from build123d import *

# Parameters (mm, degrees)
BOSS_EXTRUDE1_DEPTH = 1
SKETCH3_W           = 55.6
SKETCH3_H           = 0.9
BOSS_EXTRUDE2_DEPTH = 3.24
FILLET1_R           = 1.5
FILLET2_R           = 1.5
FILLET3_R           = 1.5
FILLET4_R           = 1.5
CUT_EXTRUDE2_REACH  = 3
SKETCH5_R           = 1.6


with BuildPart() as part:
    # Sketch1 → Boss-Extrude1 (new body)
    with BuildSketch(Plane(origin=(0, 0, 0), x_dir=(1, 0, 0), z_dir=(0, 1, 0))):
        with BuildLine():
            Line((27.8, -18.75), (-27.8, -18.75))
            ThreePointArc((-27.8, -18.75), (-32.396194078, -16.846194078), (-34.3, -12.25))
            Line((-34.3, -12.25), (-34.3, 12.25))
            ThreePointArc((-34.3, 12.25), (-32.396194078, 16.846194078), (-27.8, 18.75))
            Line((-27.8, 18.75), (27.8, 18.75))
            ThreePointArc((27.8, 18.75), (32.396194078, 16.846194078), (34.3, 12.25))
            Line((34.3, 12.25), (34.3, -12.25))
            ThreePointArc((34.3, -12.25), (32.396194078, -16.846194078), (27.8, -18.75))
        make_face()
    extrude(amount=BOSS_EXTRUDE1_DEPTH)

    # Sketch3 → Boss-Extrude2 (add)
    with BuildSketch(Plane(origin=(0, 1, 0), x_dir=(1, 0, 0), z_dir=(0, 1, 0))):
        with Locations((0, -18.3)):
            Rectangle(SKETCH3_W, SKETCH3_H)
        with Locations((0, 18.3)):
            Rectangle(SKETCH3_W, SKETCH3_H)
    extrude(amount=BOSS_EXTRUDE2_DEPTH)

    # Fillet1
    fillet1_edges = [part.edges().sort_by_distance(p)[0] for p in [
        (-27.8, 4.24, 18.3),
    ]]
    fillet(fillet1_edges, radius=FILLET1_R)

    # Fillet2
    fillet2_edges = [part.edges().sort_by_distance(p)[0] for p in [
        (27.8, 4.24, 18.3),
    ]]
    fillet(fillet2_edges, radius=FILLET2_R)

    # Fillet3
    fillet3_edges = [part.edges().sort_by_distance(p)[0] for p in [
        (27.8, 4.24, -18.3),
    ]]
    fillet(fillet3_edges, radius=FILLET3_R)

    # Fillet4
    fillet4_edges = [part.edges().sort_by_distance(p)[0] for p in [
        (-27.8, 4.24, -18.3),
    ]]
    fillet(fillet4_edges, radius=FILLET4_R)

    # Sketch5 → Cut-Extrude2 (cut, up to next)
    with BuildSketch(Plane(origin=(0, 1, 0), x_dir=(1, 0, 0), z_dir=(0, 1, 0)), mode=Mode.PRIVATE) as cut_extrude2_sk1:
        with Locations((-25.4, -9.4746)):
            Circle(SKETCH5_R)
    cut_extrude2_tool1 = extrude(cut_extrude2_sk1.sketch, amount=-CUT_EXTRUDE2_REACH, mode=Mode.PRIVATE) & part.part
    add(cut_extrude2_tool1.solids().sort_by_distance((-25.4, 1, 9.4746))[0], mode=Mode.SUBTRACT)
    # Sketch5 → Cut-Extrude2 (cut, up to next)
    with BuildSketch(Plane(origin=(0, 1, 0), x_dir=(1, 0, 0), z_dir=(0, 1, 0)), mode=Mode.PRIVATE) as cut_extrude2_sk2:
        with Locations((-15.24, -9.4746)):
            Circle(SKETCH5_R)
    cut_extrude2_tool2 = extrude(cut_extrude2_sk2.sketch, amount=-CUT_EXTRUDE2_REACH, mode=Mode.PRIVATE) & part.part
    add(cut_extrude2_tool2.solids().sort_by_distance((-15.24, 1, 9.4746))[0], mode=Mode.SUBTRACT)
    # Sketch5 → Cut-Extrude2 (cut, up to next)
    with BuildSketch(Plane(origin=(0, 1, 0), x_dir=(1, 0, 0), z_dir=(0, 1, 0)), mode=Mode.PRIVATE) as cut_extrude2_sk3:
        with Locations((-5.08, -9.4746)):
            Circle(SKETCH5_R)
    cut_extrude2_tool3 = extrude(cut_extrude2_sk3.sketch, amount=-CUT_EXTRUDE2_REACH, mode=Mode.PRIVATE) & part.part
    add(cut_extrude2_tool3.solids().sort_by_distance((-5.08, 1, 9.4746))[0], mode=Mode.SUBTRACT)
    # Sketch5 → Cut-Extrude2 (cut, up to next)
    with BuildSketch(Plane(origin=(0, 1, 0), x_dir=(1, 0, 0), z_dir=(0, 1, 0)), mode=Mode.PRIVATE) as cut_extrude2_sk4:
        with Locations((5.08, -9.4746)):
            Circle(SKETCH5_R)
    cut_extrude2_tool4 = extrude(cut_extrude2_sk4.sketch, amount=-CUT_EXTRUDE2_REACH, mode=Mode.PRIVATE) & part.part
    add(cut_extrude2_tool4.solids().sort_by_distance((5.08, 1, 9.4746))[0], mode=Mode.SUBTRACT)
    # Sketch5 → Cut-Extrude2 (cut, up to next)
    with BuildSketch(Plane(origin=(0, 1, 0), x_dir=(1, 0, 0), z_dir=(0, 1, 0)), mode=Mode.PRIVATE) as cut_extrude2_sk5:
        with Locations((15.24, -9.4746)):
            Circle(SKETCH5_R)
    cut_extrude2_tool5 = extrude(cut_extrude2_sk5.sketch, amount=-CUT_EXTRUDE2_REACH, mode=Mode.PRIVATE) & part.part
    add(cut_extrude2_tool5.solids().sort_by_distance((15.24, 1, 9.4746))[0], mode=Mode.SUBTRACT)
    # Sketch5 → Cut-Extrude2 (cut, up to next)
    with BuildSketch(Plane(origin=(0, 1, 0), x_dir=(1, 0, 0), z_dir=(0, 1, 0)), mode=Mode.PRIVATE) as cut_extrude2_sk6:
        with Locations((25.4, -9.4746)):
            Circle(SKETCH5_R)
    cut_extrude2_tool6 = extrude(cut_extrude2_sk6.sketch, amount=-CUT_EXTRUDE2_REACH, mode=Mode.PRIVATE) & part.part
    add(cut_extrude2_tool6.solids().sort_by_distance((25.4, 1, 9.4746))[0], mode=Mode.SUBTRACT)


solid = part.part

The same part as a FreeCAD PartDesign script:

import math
import FreeCAD as App
import Part
import Sketcher
Q = App.Units.Quantity


def edges_at(feature, points):
    """Names of the edges that pass closest to the given points."""
    edges = feature.Shape.Edges
    near = lambda p: min(range(len(edges)), key=lambda i: edges[i].distToShape(Part.Vertex(*p))[0])
    return sorted({f"Edge{near(p) + 1}" for p in points})

doc = App.newDocument("Part")
body = doc.addObject("PartDesign::Body", "Body")

# Sketch on XZ plane
sketch1 = body.newObject("Sketcher::SketchObject", "Sketch")
sketch1.AttachmentSupport = (doc.getObject("XZ_Plane"), [""])
sketch1.MapMode = "FlatFace"
sketch1.addGeometry([
    Part.LineSegment(App.Vector(-28, 19, 0), App.Vector(28, 19, 0)),  # 0
    Part.ArcOfCircle(Part.Circle(App.Vector(28, 12, 0), App.Vector(0, 0, 1), 6), math.radians(0), math.radians(90)),  # 1
    Part.LineSegment(App.Vector(34, 12, 0), App.Vector(34, -12, 0)),  # 2
    Part.ArcOfCircle(Part.Circle(App.Vector(28, -12, 0), App.Vector(0, 0, 1), 6), math.radians(-90), math.radians(0)),  # 3
    Part.LineSegment(App.Vector(28, -19, 0), App.Vector(-28, -19, 0)),  # 4
    Part.ArcOfCircle(Part.Circle(App.Vector(-28, -12, 0), App.Vector(0, 0, 1), 6), math.radians(180), math.radians(270)),  # 5
    Part.LineSegment(App.Vector(-34, -12, 0), App.Vector(-34, 12, 0)),  # 6
    Part.ArcOfCircle(Part.Circle(App.Vector(-28, 12, 0), App.Vector(0, 0, 1), 6), math.radians(90), math.radians(180)),  # 7
], False)
sketch1.addConstraint([
    Sketcher.Constraint("Tangent", 0, 2, 1, 2),
    Sketcher.Constraint("Tangent", 1, 1, 2, 1),
    Sketcher.Constraint("Tangent", 2, 2, 3, 2),
    Sketcher.Constraint("Tangent", 3, 1, 4, 1),
    Sketcher.Constraint("Tangent", 4, 2, 5, 2),
    Sketcher.Constraint("Tangent", 5, 1, 6, 1),
    Sketcher.Constraint("Tangent", 6, 2, 7, 2),
    Sketcher.Constraint("Tangent", 7, 1, 0, 1),
    Sketcher.Constraint("Horizontal", 0),
    Sketcher.Constraint("Vertical", 2),
    Sketcher.Constraint("Horizontal", 4),
    Sketcher.Constraint("Vertical", 6),
    Sketcher.Constraint("Equal", 1, 3),
    Sketcher.Constraint("Equal", 3, 5),
    Sketcher.Constraint("Equal", 5, 7),
    Sketcher.Constraint("Symmetric", 1, 3, 5, 3, -1, 1),
    Sketcher.Constraint("Radius", 1, Q("6.5 mm")),
    Sketcher.Constraint("DistanceX", 0, 1, 0, 2, Q("55.6 mm")),
    Sketcher.Constraint("DistanceY", 2, 2, 2, 1, Q("24.5 mm")),
])
pad1 = body.newObject("PartDesign::Pad", "Pad")
pad1.Profile = sketch1
pad1.Length = 1
pad1.Reversed = True

# Sketch on XZ plane
sketch2 = body.newObject("Sketcher::SketchObject", "Sketch001")
sketch2.AttachmentSupport = (doc.getObject("XZ_Plane"), [""])
sketch2.MapMode = "FlatFace"
sketch2.AttachmentOffset = App.Placement(App.Vector(0, 0, -1), App.Rotation())
sketch2.addGeometry([
    Part.LineSegment(App.Vector(-27.8, 17.9, 0), App.Vector(-27.8, 18.8, 0)),  # 0
    Part.LineSegment(App.Vector(-27.8, 18.8, 0), App.Vector(27.8, 18.8, 0)),  # 1
    Part.LineSegment(App.Vector(27.8, 18.8, 0), App.Vector(27.8, 17.9, 0)),  # 2
    Part.LineSegment(App.Vector(27.8, 17.9, 0), App.Vector(-27.8, 17.9, 0)),  # 3
    Part.LineSegment(App.Vector(-27.8, -18.8, 0), App.Vector(-27.8, -17.9, 0)),  # 4
    Part.LineSegment(App.Vector(-27.8, -17.9, 0), App.Vector(27.8, -17.9, 0)),  # 5
    Part.LineSegment(App.Vector(27.8, -17.9, 0), App.Vector(27.8, -18.8, 0)),  # 6
    Part.LineSegment(App.Vector(27.8, -18.8, 0), App.Vector(-27.8, -18.8, 0)),  # 7
], False)
sketch2.addConstraint([
    Sketcher.Constraint("Coincident", 0, 2, 1, 1),
    Sketcher.Constraint("Coincident", 1, 2, 2, 1),
    Sketcher.Constraint("Coincident", 2, 2, 3, 1),
    Sketcher.Constraint("Coincident", 3, 2, 0, 1),
    Sketcher.Constraint("Coincident", 4, 2, 5, 1),
    Sketcher.Constraint("Coincident", 5, 2, 6, 1),
    Sketcher.Constraint("Coincident", 6, 2, 7, 1),
    Sketcher.Constraint("Coincident", 7, 2, 4, 1),
    Sketcher.Constraint("Vertical", 0),
    Sketcher.Constraint("Horizontal", 1),
    Sketcher.Constraint("Vertical", 2),
    Sketcher.Constraint("Horizontal", 3),
    Sketcher.Constraint("Vertical", 4),
    Sketcher.Constraint("Horizontal", 5),
    Sketcher.Constraint("Vertical", 6),
    Sketcher.Constraint("Horizontal", 7),
    Sketcher.Constraint("Symmetric", 2, 2, 4, 2, -1, 1),
    Sketcher.Constraint("Symmetric", 0, 2, 6, 2, -1, 1),
    Sketcher.Constraint("Vertical", 3, 2, 4, 2),
    Sketcher.Constraint("DistanceX", 1, 1, 1, 2, Q("55.6 mm")),
    Sketcher.Constraint("DistanceY", 0, 1, 0, 2, Q("0.9 mm")),
    Sketcher.Constraint("DistanceY", 4, 2, 3, 2, Q("35.7 mm")),
])
pad2 = body.newObject("PartDesign::Pad", "Pad001")
pad2.Profile = sketch2
pad2.Length = 3.24
pad2.Reversed = True
doc.recompute()

fillet = body.newObject("PartDesign::Fillet", "Fillet")
fillet.Base = (pad2, edges_at(pad2, [(-27.8, 4.24, 18.3)]))
fillet.Radius = 1.5
doc.recompute()

fillet2 = body.newObject("PartDesign::Fillet", "Fillet001")
fillet2.Base = (fillet, edges_at(fillet, [(27.8, 4.24, 18.3)]))
fillet2.Radius = 1.5
doc.recompute()

fillet3 = body.newObject("PartDesign::Fillet", "Fillet002")
fillet3.Base = (fillet2, edges_at(fillet2, [(27.8, 4.24, -18.3)]))
fillet3.Radius = 1.5
doc.recompute()

fillet4 = body.newObject("PartDesign::Fillet", "Fillet003")
fillet4.Base = (fillet3, edges_at(fillet3, [(-27.8, 4.24, -18.3)]))
fillet4.Radius = 1.5

# Sketch on XZ plane
sketch3 = body.newObject("Sketcher::SketchObject", "Sketch002")
sketch3.AttachmentSupport = (doc.getObject("XZ_Plane"), [""])
sketch3.MapMode = "FlatFace"
sketch3.AttachmentOffset = App.Placement(App.Vector(0, 0, -1), App.Rotation())
sketch3.addGeometry(Part.Circle(App.Vector(-25.4, 9.5, 0), App.Vector(0, 0, 1), 1.6), False)
sketch3.addConstraint([
    Sketcher.Constraint("Diameter", 0, Q("3.2 mm")),
    Sketcher.Constraint("DistanceX", 0, 3, -1, 1, Q("25.4 mm")),
    Sketcher.Constraint("DistanceY", -1, 1, 0, 3, Q("9.4746 mm")),
])
pocket1 = body.newObject("PartDesign::Pocket", "Pocket")
pocket1.Profile = sketch3
pocket1.Type = "UpToFirst"
pocket1.Reversed = True

# Sketch on XZ plane
sketch4 = body.newObject("Sketcher::SketchObject", "Sketch003")
sketch4.AttachmentSupport = (doc.getObject("XZ_Plane"), [""])
sketch4.MapMode = "FlatFace"
sketch4.AttachmentOffset = App.Placement(App.Vector(0, 0, -1), App.Rotation())
sketch4.addGeometry(Part.Circle(App.Vector(-15.2, 9.5, 0), App.Vector(0, 0, 1), 1.6), False)
sketch4.addConstraint([
    Sketcher.Constraint("Diameter", 0, Q("3.2 mm")),
    Sketcher.Constraint("DistanceX", 0, 3, -1, 1, Q("15.24 mm")),
    Sketcher.Constraint("DistanceY", -1, 1, 0, 3, Q("9.4746 mm")),
])
pocket2 = body.newObject("PartDesign::Pocket", "Pocket001")
pocket2.Profile = sketch4
pocket2.Type = "UpToFirst"
pocket2.Reversed = True

# Sketch on XZ plane
sketch5 = body.newObject("Sketcher::SketchObject", "Sketch004")
sketch5.AttachmentSupport = (doc.getObject("XZ_Plane"), [""])
sketch5.MapMode = "FlatFace"
sketch5.AttachmentOffset = App.Placement(App.Vector(0, 0, -1), App.Rotation())
sketch5.addGeometry(Part.Circle(App.Vector(-5.1, 9.5, 0), App.Vector(0, 0, 1), 1.6), False)
sketch5.addConstraint([
    Sketcher.Constraint("Diameter", 0, Q("3.2 mm")),
    Sketcher.Constraint("DistanceX", 0, 3, -1, 1, Q("5.08 mm")),
    Sketcher.Constraint("DistanceY", -1, 1, 0, 3, Q("9.4746 mm")),
])
pocket3 = body.newObject("PartDesign::Pocket", "Pocket002")
pocket3.Profile = sketch5
pocket3.Type = "UpToFirst"
pocket3.Reversed = True

# Sketch on XZ plane
sketch6 = body.newObject("Sketcher::SketchObject", "Sketch005")
sketch6.AttachmentSupport = (doc.getObject("XZ_Plane"), [""])
sketch6.MapMode = "FlatFace"
sketch6.AttachmentOffset = App.Placement(App.Vector(0, 0, -1), App.Rotation())
sketch6.addGeometry(Part.Circle(App.Vector(5.1, 9.5, 0), App.Vector(0, 0, 1), 1.6), False)
sketch6.addConstraint([
    Sketcher.Constraint("Diameter", 0, Q("3.2 mm")),
    Sketcher.Constraint("DistanceX", -1, 1, 0, 3, Q("5.08 mm")),
    Sketcher.Constraint("DistanceY", -1, 1, 0, 3, Q("9.4746 mm")),
])
pocket4 = body.newObject("PartDesign::Pocket", "Pocket003")
pocket4.Profile = sketch6
pocket4.Type = "UpToFirst"
pocket4.Reversed = True

# Sketch on XZ plane
sketch7 = body.newObject("Sketcher::SketchObject", "Sketch006")
sketch7.AttachmentSupport = (doc.getObject("XZ_Plane"), [""])
sketch7.MapMode = "FlatFace"
sketch7.AttachmentOffset = App.Placement(App.Vector(0, 0, -1), App.Rotation())
sketch7.addGeometry(Part.Circle(App.Vector(15.2, 9.5, 0), App.Vector(0, 0, 1), 1.6), False)
sketch7.addConstraint([
    Sketcher.Constraint("Diameter", 0, Q("3.2 mm")),
    Sketcher.Constraint("DistanceX", -1, 1, 0, 3, Q("15.24 mm")),
    Sketcher.Constraint("DistanceY", -1, 1, 0, 3, Q("9.4746 mm")),
])
pocket5 = body.newObject("PartDesign::Pocket", "Pocket004")
pocket5.Profile = sketch7
pocket5.Type = "UpToFirst"
pocket5.Reversed = True

# Sketch on XZ plane
sketch8 = body.newObject("Sketcher::SketchObject", "Sketch007")
sketch8.AttachmentSupport = (doc.getObject("XZ_Plane"), [""])
sketch8.MapMode = "FlatFace"
sketch8.AttachmentOffset = App.Placement(App.Vector(0, 0, -1), App.Rotation())
sketch8.addGeometry(Part.Circle(App.Vector(25.4, 9.5, 0), App.Vector(0, 0, 1), 1.6), False)
sketch8.addConstraint([
    Sketcher.Constraint("Diameter", 0, Q("3.2 mm")),
    Sketcher.Constraint("DistanceX", -1, 1, 0, 3, Q("25.4 mm")),
    Sketcher.Constraint("DistanceY", -1, 1, 0, 3, Q("9.4746 mm")),
])
pocket6 = body.newObject("PartDesign::Pocket", "Pocket005")
pocket6.Profile = sketch8
pocket6.Type = "UpToFirst"
pocket6.Reversed = True

doc.recompute()
